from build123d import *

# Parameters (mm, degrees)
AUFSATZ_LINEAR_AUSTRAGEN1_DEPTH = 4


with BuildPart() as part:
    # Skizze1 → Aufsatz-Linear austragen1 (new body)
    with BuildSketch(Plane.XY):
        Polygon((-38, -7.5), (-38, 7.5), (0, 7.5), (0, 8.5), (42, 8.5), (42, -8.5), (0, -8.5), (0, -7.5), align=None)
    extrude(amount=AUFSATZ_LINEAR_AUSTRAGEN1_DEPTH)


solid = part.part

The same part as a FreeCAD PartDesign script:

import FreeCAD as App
import Part
import Sketcher

V = App.Vector
Q = App.Units.Quantity


def add_polygon(sketch, points):
    """Adds a closed chain of lines whose ends are joined by coincident constraints."""
    first, n = sketch.GeometryCount, len(points)
    for a, b in zip(points, points[1:] + points[:1]):
        sketch.addGeometry(Part.LineSegment(App.Vector(*a, 0), App.Vector(*b, 0)), False)
    for i in range(n):
        sketch.addConstraint(Sketcher.Constraint("Coincident", first + i, 2, first + (i + 1) % n, 1))

doc = App.newDocument("Part")
body = doc.addObject("PartDesign::Body", "Body")

# Sketch on XY plane
sketch1 = body.newObject("Sketcher::SketchObject", "Sketch")
sketch1.AttachmentSupport = (doc.getObject("XY_Plane"), [""])
sketch1.MapMode = "FlatFace"
add_polygon(sketch1, [(-38, 7.5), (-38, -7.5), (0, -7.5), (0, -8.5), (42, -8.5), (42, 8.5), (0, 8.5), (0, 7.5)])  # lines 0-7
sketch1.addConstraint(Sketcher.Constraint("Vertical", 0))
sketch1.addConstraint(Sketcher.Constraint("Horizontal", 1))
sketch1.addConstraint(Sketcher.Constraint("Vertical", 2))
sketch1.addConstraint(Sketcher.Constraint("Horizontal", 3))
sketch1.addConstraint(Sketcher.Constraint("Vertical", 4))
sketch1.addConstraint(Sketcher.Constraint("Horizontal", 5))
sketch1.addConstraint(Sketcher.Constraint("Vertical", 6))
sketch1.addConstraint(Sketcher.Constraint("Horizontal", 7))
sketch1.addConstraint(Sketcher.Constraint("Symmetric", 2, 2, 5, 2, -1, 1))
sketch1.addConstraint(Sketcher.Constraint("Symmetric", 1, 2, 6, 2, -1))
sketch1.addConstraint(Sketcher.Constraint("DistanceX", 1, 1, 1, 2, Q("38 mm")))
sketch1.addConstraint(Sketcher.Constraint("DistanceX", 3, 1, 3, 2, Q("42 mm")))
sketch1.addConstraint(Sketcher.Constraint("DistanceY", 0, 2, 0, 1, Q("15 mm")))
sketch1.addConstraint(Sketcher.Constraint("DistanceY", 2, 2, 2, 1, Q("1 mm")))
pad1 = body.newObject("PartDesign::Pad", "Pad")
pad1.Profile = sketch1
pad1.Length = 4

doc.recompute()
